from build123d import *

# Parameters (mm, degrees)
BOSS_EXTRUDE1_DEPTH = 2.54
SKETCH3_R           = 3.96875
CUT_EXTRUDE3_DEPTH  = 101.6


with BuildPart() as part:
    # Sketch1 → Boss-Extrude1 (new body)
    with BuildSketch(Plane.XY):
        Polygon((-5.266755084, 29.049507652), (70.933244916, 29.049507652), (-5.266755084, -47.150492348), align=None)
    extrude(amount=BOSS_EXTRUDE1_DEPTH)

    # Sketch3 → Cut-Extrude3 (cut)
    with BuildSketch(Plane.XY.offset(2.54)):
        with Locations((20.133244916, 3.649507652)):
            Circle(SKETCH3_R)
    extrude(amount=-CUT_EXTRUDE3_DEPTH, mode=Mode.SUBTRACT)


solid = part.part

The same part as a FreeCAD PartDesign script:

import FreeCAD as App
import Part
import Sketcher
from FreeCAD import Vector
Q = App.Units.Quantity


def add_polygon(sketch, points):
    """Adds a closed chain of lines whose ends are joined by coincident constraints."""
    first, n = sketch.GeometryCount, len(points)
    for a, b in zip(points, points[1:] + points[:1]):
        sketch.addGeometry(Part.LineSegment(App.Vector(*a, 0), App.Vector(*b, 0)), False)
    for i in range(n):
        sketch.addConstraint(Sketcher.Constraint("Coincident", first + i, 2, first + (i + 1) % n, 1))

doc = App.newDocument("Part")
body = doc.addObject("PartDesign::Body", "Body")

# Sketch on XY plane
sketch1 = doc.addObject("Sketcher::SketchObject", "Sketch")
body.addObject(sketch1)
sketch1.AttachmentSupport = (doc.XY_Plane, [""])
sketch1.MapMode = "FlatFace"
add_polygon(sketch1, [(71, 29), (-5, 29), (-5, -47)])  # lines 0-2
sketch1.addConstraint([
    Sketcher.Constraint("Horizontal", 0),
    Sketcher.Constraint("Vertical", 1),
    Sketcher.Constraint("Equal", 0, 1),
    Sketcher.Constraint("DistanceX", 0, 2, 0, 1, Q("3 in")),
    Sketcher.Constraint("DistanceX", 0, 2, -1, 1, Q("5.266755 mm")),
    Sketcher.Constraint("DistanceY", -1, 1, 0, 2, Q("29.049508 mm")),
])
pad1 = doc.addObject("PartDesign::Pad", "Pad")
body.addObject(pad1)
pad1.Profile = sketch1
pad1.Length = Q("0.1 in")

# Sketch on XY plane
sketch2 = doc.addObject("Sketcher::SketchObject", "Sketch001")
body.addObject(sketch2)
sketch2.AttachmentSupport = (doc.XY_Plane, [""])
sketch2.MapMode = "FlatFace"
sketch2.AttachmentOffset = App.Placement(Vector(0, 0, 0.1 * 25.4), App.Rotation())
sketch2.addGeometry(Part.Circle(Vector(20.1, 3.6, 0), Vector(0, 0, 1), 4), False)
sketch2.addConstraint([
    Sketcher.Constraint("Diameter", 0, Q("0.3125 in")),
    Sketcher.Constraint("DistanceX", -1, 1, 0, 3, Q("20.133245 mm")),
    Sketcher.Constraint("DistanceY", -1, 1, 0, 3, Q("3.649508 mm")),
])
pocket1 = doc.addObject("PartDesign::Pocket", "Pocket")
body.addObject(pocket1)
pocket1.Profile = sketch2
pocket1.Length = Q("4 in")

doc.recompute()
